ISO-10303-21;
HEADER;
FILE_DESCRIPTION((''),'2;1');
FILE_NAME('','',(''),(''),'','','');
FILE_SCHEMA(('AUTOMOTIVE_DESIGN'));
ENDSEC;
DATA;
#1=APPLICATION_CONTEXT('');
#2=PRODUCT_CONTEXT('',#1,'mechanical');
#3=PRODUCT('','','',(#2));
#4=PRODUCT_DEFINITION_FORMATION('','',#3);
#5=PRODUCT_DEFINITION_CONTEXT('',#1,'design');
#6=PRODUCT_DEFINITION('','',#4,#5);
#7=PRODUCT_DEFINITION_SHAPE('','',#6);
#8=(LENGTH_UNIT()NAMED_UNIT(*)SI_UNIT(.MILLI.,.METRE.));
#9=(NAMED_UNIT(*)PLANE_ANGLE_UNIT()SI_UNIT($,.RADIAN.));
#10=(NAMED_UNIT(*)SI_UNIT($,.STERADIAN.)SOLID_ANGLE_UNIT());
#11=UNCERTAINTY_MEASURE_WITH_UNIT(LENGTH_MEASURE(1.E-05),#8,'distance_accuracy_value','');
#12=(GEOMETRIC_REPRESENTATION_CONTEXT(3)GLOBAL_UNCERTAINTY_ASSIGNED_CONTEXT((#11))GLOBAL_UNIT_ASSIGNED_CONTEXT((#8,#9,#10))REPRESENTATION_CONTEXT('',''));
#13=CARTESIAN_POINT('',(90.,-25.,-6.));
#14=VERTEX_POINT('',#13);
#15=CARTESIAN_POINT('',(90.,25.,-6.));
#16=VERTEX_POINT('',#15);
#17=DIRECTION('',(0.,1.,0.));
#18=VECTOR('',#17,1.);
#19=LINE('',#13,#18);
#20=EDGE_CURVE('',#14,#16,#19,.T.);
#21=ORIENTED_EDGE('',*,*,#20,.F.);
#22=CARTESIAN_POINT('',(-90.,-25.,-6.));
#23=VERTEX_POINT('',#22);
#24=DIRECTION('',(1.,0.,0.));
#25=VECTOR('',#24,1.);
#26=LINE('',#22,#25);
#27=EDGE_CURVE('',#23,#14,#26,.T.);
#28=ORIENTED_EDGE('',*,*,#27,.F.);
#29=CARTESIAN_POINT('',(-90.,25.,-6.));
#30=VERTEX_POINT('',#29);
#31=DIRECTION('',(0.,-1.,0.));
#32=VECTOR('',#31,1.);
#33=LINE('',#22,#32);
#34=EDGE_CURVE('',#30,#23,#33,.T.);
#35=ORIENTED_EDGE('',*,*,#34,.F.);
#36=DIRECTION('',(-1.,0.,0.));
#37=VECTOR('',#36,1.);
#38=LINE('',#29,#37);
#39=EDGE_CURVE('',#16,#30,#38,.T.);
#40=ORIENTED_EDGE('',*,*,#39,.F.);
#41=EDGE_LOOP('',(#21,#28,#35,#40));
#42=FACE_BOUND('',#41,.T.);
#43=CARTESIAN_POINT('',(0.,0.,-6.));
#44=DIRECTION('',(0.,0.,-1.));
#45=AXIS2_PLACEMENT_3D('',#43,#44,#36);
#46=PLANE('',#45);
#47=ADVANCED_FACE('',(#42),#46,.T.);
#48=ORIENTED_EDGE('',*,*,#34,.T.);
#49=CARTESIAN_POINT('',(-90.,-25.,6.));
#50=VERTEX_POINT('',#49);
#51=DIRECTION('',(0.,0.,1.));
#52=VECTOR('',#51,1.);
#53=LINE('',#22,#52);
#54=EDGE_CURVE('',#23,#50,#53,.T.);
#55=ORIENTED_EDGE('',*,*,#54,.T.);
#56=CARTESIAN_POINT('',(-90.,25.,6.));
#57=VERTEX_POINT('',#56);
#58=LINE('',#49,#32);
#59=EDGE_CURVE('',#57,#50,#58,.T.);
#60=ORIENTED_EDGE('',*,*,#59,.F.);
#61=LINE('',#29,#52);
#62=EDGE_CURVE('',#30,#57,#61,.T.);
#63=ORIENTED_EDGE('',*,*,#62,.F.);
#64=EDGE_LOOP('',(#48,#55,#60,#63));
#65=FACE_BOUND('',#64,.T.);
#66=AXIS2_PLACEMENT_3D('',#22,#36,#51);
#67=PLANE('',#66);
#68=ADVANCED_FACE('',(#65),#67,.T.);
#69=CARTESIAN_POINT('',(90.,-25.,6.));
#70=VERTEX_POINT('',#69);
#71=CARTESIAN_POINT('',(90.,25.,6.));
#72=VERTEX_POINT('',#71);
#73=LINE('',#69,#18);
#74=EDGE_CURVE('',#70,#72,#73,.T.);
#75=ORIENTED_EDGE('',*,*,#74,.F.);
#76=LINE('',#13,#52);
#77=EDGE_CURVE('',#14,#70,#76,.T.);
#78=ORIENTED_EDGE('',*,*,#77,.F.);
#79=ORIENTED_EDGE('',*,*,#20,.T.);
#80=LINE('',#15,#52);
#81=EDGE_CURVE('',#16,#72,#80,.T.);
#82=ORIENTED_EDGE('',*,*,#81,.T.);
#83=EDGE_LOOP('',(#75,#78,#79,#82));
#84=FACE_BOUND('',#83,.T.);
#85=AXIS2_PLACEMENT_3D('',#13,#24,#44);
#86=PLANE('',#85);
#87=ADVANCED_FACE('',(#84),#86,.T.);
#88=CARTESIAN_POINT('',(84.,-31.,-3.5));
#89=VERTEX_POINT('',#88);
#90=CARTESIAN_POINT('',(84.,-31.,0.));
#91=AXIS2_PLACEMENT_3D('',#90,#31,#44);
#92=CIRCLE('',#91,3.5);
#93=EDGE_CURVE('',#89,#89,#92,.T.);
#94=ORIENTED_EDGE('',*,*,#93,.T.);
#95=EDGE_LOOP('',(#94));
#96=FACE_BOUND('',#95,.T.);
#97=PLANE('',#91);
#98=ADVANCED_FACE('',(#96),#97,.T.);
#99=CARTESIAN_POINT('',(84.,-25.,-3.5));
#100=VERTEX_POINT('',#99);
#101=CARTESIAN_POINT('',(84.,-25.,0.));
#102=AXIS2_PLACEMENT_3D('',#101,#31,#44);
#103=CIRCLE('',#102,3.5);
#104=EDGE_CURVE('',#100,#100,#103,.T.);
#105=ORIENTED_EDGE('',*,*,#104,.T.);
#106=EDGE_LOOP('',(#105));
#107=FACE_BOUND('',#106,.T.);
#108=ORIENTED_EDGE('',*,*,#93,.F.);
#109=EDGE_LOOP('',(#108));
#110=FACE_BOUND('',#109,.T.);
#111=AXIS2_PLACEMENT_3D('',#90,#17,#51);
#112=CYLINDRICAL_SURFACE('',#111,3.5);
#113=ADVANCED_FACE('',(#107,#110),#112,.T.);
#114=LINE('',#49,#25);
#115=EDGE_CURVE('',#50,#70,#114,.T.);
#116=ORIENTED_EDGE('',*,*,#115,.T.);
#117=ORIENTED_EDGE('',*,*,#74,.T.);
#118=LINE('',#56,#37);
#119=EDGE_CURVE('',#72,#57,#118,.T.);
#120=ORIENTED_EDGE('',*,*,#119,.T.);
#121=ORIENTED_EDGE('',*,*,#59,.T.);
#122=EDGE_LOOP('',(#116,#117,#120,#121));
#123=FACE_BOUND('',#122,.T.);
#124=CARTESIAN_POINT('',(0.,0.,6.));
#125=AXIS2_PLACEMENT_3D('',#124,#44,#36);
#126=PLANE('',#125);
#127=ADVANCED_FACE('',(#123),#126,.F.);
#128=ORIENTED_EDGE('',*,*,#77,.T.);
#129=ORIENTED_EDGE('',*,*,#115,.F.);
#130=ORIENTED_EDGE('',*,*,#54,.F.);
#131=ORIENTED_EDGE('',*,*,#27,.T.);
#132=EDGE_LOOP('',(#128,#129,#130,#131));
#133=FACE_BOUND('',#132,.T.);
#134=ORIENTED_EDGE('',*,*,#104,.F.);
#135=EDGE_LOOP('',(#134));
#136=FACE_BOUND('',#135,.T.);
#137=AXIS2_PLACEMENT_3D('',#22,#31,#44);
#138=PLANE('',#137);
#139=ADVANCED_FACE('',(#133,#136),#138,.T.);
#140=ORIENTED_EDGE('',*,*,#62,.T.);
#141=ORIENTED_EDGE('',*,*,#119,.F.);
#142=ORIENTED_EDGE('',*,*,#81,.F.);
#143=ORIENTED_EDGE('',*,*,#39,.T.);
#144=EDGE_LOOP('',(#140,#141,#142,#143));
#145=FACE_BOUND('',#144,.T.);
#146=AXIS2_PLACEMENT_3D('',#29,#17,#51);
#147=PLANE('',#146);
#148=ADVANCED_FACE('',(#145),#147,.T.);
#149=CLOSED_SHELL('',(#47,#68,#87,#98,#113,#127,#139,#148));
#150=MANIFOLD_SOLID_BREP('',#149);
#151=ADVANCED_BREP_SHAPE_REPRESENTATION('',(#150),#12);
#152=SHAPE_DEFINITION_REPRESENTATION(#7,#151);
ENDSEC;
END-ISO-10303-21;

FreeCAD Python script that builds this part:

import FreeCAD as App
import Part
import Sketcher
Q = App.Units.Quantity


def add_polygon(sketch, points):
    """Adds a closed chain of lines whose ends are joined by coincident constraints."""
    first, n = sketch.GeometryCount, len(points)
    for a, b in zip(points, points[1:] + points[:1]):
        sketch.addGeometry(Part.LineSegment(App.Vector(*a, 0), App.Vector(*b, 0)), False)
    for i in range(n):
        sketch.addConstraint(Sketcher.Constraint("Coincident", first + i, 2, first + (i + 1) % n, 1))

doc = App.newDocument("Part")
params = doc.addObject("Spreadsheet::Sheet", "Params")
for row, (alias, value) in enumerate([
    ("sketch1_width", "180 mm"),
    ("sketch1_height", "50 mm"),
    ("pad1_length", "6 mm"),
    ("pad1_length2", "6 mm"),
    ("sketch2_diameter", "7 mm"),
    ("pad2_length", "6 mm"),
], start=1):
    params.set(f"A{row}", alias)
    params.set(f"B{row}", "=" + value)
    params.setAlias(f"B{row}", alias)

body = doc.addObject("PartDesign::Body", "Body")

# Sketch on XY plane
sketch1 = body.newObject("Sketcher::SketchObject", "Sketch")
sketch1.AttachmentSupport = (doc.getObject("XY_Plane"), [""])
sketch1.MapMode = "FlatFace"
add_polygon(sketch1, [(-90, 25), (-90, -25), (90, -25), (90, 25)])  # lines 0-3
sketch1.addConstraint(Sketcher.Constraint("Vertical", 0))
sketch1.addConstraint(Sketcher.Constraint("Horizontal", 1))
sketch1.addConstraint(Sketcher.Constraint("Vertical", 2))
sketch1.addConstraint(Sketcher.Constraint("Horizontal", 3))
sketch1.addConstraint(Sketcher.Constraint("Symmetric", 0, 2, 2, 2, -1, 1))
sketch1.addConstraint(Sketcher.Constraint("DistanceX", 1, 1, 1, 2, Q("180 mm")))
sketch1.addConstraint(Sketcher.Constraint("DistanceY", 0, 2, 0, 1, Q("50 mm")))
sketch1.setExpression("Constraints[9]", "Params.sketch1_width")
sketch1.setExpression("Constraints[10]", "Params.sketch1_height")
pad1 = body.newObject("PartDesign::Pad", "Pad")
pad1.Profile = sketch1
pad1.Type = "TwoLengths"
pad1.setExpression("Length", "Params.pad1_length")
pad1.setExpression("Length2", "Params.pad1_length2")

# Sketch on XZ plane
sketch2 = body.newObject("Sketcher::SketchObject", "Sketch001")
sketch2.AttachmentSupport = (doc.getObject("XZ_Plane"), [""])
sketch2.MapMode = "FlatFace"
sketch2.AttachmentOffset = App.Placement(App.Vector(0, 0, 25), App.Rotation())
sketch2.addGeometry(Part.Circle(App.Vector(84, 0, 0), App.Vector(0, 0, 1), 3.5), False)
sketch2.addConstraint(Sketcher.Constraint("PointOnObject", 0, 3, -1))
sketch2.addConstraint(Sketcher.Constraint("Diameter", 0, Q("7 mm")))
sketch2.addConstraint(Sketcher.Constraint("DistanceX", -1, 1, 0, 3, Q("84 mm")))
sketch2.setExpression("Constraints[1]", "Params.sketch2_diameter")
pad2 = body.newObject("PartDesign::Pad", "Pad001")
pad2.Profile = sketch2
pad2.setExpression("Length", "Params.pad2_length")

doc.recompute()
